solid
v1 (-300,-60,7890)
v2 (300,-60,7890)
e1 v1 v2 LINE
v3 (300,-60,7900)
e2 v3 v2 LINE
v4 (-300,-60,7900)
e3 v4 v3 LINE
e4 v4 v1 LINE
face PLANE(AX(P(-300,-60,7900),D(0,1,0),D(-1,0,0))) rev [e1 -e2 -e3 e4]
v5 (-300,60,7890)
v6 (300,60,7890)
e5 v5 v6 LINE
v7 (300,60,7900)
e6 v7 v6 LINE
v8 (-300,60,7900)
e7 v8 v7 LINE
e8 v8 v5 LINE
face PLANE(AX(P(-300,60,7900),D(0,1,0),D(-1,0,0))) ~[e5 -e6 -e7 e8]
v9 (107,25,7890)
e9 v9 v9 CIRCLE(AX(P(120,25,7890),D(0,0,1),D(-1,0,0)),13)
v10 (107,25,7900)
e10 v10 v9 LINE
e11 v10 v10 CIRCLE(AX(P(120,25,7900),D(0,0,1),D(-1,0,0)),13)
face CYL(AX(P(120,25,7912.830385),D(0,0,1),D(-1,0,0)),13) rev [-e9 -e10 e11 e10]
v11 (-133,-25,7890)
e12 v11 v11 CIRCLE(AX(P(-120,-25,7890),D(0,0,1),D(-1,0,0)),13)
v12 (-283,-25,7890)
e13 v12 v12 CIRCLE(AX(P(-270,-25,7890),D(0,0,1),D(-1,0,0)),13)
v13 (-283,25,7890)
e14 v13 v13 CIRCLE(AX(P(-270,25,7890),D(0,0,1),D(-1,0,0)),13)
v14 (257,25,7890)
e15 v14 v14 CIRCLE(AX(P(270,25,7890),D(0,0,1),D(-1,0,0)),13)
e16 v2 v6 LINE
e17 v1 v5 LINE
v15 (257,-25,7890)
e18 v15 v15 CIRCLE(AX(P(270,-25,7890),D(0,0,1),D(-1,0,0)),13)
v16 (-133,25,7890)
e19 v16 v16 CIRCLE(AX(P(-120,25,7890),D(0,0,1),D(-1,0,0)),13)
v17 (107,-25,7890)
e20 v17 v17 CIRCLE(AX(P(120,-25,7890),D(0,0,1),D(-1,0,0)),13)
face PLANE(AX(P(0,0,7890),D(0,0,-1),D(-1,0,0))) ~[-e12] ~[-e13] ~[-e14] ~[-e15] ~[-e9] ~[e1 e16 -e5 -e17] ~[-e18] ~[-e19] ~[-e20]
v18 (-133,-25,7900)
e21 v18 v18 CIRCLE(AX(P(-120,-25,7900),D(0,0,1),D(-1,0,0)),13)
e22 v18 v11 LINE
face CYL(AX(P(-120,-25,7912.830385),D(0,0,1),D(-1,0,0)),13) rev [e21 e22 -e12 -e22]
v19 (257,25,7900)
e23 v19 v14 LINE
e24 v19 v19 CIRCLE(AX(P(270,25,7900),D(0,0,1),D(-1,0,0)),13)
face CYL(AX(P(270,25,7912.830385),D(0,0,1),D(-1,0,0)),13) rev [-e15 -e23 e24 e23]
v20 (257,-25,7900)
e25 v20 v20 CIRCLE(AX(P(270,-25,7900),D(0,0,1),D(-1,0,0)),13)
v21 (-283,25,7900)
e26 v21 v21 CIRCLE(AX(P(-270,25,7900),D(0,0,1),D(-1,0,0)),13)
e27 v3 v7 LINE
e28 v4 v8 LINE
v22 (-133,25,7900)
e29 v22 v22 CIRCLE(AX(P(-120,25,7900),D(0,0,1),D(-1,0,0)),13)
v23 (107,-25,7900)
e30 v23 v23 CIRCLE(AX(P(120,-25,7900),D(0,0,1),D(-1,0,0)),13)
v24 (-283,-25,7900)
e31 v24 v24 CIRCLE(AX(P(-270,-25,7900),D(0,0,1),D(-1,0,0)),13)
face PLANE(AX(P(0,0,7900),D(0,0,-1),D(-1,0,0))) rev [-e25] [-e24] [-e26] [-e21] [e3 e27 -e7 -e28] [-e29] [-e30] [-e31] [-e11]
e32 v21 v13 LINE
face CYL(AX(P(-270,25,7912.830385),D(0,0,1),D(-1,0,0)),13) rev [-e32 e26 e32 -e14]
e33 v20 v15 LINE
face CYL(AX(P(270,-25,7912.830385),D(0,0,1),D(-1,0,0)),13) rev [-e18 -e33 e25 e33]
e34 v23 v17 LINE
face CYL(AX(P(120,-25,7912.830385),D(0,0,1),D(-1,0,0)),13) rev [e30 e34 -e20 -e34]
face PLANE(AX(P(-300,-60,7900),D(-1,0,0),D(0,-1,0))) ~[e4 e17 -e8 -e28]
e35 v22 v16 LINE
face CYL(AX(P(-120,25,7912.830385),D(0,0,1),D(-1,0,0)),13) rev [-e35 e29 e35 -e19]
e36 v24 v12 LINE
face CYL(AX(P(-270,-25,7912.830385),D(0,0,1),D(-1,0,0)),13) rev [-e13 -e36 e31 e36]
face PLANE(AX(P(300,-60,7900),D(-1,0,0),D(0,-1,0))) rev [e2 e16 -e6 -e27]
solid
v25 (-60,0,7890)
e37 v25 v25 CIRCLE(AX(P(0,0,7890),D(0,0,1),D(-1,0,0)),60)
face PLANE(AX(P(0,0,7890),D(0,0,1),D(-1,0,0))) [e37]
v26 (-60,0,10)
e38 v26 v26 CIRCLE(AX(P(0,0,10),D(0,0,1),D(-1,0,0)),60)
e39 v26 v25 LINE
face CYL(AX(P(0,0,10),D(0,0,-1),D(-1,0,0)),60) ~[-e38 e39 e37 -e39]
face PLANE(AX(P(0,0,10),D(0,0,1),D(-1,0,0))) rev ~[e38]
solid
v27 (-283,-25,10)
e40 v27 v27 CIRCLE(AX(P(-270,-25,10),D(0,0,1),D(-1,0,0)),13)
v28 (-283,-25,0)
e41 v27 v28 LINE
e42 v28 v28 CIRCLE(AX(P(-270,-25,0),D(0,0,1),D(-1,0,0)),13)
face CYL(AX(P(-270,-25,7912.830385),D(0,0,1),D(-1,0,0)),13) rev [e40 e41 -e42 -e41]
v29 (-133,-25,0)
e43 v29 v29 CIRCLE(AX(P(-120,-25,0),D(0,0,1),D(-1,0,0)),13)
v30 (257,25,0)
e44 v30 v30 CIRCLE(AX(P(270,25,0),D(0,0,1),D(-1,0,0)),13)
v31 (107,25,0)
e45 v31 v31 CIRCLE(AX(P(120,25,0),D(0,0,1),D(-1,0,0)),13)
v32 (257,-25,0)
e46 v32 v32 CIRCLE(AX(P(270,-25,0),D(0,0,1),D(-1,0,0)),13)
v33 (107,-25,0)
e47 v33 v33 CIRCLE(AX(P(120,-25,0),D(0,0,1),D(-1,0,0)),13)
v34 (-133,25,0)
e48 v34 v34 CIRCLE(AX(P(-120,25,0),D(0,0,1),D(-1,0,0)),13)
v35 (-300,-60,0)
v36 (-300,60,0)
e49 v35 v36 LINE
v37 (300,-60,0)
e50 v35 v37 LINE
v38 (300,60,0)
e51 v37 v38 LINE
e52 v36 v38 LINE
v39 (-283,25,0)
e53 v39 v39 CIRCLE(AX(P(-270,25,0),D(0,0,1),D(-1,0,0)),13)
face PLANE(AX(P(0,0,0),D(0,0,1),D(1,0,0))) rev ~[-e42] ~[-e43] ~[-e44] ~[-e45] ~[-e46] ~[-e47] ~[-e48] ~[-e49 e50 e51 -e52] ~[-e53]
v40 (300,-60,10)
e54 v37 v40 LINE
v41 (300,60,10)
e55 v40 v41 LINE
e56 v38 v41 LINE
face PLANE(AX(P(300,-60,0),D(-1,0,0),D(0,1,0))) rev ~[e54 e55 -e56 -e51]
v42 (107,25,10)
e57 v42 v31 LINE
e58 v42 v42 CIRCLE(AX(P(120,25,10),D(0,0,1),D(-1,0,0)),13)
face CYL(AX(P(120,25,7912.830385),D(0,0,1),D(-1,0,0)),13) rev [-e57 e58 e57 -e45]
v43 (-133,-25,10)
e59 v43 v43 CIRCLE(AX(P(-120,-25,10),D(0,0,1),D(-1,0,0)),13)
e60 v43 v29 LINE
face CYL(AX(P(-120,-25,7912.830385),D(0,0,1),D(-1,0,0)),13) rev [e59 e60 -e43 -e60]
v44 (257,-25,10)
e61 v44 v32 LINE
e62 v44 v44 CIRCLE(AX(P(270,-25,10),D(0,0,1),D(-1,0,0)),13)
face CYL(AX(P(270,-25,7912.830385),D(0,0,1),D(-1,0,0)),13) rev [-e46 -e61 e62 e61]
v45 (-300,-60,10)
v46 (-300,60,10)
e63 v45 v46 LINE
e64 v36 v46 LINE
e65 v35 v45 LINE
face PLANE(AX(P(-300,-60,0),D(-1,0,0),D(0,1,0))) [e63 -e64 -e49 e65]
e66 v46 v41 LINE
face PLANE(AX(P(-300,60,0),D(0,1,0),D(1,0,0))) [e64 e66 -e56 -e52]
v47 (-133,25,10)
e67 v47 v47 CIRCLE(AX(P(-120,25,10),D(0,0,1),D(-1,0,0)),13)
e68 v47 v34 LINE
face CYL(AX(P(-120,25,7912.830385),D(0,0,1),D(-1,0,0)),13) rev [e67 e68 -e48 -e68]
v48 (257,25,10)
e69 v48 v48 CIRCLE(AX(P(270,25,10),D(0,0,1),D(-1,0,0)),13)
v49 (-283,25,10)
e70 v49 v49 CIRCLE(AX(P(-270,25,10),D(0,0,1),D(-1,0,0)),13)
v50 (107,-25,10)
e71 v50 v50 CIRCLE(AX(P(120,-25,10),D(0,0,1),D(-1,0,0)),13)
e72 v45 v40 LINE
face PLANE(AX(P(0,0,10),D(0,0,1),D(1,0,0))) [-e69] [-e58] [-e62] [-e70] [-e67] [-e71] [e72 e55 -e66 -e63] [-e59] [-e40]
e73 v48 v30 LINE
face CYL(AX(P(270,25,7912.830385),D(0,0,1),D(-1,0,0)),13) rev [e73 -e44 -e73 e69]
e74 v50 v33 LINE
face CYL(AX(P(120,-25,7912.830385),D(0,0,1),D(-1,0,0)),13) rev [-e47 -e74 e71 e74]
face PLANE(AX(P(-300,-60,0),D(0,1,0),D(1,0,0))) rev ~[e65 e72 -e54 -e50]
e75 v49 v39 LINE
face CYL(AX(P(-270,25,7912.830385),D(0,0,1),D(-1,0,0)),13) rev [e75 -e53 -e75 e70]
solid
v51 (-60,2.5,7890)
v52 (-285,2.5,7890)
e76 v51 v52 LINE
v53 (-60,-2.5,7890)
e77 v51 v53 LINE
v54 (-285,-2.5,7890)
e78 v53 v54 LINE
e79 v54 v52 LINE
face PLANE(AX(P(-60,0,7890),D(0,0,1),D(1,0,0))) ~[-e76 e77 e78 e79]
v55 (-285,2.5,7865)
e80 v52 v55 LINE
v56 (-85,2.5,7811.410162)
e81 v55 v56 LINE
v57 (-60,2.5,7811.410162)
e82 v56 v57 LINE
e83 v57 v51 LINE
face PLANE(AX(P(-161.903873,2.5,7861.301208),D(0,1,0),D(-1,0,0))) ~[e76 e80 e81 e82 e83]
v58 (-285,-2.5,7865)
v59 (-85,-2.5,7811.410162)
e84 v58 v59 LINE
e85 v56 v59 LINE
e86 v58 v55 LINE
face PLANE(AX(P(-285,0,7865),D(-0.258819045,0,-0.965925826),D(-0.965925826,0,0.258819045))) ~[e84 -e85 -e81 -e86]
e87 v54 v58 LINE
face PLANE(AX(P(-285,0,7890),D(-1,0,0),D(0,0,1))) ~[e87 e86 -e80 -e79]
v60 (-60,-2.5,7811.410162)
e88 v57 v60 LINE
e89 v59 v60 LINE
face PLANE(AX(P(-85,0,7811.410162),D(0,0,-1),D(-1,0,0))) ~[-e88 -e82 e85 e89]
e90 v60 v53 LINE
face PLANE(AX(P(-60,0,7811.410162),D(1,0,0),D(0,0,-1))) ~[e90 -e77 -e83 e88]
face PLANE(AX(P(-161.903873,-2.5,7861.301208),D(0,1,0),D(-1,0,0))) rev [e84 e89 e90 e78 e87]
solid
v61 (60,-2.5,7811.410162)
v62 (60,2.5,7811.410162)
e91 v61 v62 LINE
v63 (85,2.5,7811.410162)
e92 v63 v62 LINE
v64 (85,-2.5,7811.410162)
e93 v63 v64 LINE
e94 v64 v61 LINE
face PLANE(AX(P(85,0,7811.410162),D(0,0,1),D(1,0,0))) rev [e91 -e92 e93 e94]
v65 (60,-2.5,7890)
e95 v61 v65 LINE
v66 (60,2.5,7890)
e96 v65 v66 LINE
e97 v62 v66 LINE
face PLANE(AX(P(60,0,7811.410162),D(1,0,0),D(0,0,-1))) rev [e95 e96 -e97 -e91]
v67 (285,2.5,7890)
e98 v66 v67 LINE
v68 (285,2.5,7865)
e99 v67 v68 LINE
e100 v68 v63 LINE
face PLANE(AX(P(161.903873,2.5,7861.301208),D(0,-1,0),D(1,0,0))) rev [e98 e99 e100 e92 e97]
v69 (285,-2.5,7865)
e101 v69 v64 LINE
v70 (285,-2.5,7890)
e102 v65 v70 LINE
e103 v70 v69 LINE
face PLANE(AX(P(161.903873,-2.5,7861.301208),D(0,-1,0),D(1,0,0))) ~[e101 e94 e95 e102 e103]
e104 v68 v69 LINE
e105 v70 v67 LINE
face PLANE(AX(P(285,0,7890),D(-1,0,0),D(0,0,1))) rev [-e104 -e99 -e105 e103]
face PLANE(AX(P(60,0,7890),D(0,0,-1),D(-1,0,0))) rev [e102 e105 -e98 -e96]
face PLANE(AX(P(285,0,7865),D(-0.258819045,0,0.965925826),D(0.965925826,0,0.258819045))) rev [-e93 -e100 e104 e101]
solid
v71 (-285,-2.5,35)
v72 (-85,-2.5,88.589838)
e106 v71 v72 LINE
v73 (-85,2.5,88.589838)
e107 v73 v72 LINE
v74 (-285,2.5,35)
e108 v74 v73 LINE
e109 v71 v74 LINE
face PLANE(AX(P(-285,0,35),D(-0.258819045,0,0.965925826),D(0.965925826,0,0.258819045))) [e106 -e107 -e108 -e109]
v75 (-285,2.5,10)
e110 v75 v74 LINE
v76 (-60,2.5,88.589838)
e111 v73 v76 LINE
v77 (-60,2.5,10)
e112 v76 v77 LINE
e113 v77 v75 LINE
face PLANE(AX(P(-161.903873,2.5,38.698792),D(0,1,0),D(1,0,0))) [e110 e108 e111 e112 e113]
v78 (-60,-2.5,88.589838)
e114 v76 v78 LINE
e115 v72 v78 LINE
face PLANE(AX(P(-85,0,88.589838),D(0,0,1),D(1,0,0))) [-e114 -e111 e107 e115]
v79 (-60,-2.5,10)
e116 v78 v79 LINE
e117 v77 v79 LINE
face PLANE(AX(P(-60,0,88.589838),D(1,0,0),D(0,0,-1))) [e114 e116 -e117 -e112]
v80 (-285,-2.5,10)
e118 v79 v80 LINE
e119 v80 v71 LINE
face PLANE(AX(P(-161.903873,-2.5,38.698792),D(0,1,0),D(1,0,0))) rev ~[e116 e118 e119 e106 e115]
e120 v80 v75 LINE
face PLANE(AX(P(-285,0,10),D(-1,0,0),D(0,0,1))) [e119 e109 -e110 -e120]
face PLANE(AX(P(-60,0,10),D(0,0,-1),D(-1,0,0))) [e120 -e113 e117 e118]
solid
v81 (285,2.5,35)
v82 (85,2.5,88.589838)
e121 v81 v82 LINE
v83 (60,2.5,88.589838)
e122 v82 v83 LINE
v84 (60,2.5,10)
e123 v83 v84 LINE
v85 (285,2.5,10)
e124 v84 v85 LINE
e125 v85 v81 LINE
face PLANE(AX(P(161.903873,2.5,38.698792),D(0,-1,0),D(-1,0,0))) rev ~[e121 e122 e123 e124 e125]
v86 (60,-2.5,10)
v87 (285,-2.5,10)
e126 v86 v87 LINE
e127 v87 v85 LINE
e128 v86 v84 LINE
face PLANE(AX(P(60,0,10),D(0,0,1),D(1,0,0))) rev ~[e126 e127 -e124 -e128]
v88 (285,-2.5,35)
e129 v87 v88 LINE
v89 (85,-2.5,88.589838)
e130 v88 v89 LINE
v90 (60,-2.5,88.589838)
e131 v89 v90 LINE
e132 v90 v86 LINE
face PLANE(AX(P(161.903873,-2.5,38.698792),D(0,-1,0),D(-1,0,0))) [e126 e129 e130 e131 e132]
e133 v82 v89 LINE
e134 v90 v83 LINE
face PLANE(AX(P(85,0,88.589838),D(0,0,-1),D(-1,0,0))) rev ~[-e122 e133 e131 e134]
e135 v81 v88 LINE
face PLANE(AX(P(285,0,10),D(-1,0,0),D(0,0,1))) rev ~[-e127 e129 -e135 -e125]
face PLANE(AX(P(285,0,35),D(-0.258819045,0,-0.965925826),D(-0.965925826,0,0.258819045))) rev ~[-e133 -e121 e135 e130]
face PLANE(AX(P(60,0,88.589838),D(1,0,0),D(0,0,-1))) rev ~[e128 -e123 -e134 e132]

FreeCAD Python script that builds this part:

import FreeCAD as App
import Part
import Sketcher
from FreeCAD import Vector
Q = App.Units.Quantity


def add_polygon(sketch, points):
    """Adds a closed chain of lines whose ends are joined by coincident constraints."""
    first, n = sketch.GeometryCount, len(points)
    for a, b in zip(points, points[1:] + points[:1]):
        sketch.addGeometry(Part.LineSegment(App.Vector(*a, 0), App.Vector(*b, 0)), False)
    for i in range(n):
        sketch.addConstraint(Sketcher.Constraint("Coincident", first + i, 2, first + (i + 1) % n, 1))

doc = App.newDocument("Part")
params = doc.addObject("Spreadsheet::Sheet", "Params")
for row, (alias, value) in enumerate([
    ("sketch1_width", "600 mm"),
    ("sketch1_height", "120 mm"),
    ("pad1_length", "10 mm"),
    ("sketch2_diameter", "120 mm"),
    ("pad2_length", "7880 mm"),
    ("sketch3_width", "225 mm"),
    ("sketch3_width2", "25 mm"),
    ("pad3_length", "5 mm"),
    ("sketch4_width", "225 mm"),
    ("sketch4_width2", "25 mm"),
    ("pad4_length", "5 mm"),
    ("sketch5_diameter", "26 mm"),
    ("pad5_length", "3962.830385 mm"),
    ("pad5_length2", "3962.830385 mm"),
], start=1):
    params.set(f"A{row}", alias)
    params.set(f"B{row}", "=" + value)
    params.setAlias(f"B{row}", alias)

body = doc.addObject("PartDesign::Body", "Body")

# Sketch on XY plane
sketch1 = doc.addObject("Sketcher::SketchObject", "Sketch")
body.addObject(sketch1)
sketch1.AttachmentSupport = (doc.XY_Plane, [""])
sketch1.MapMode = "FlatFace"
add_polygon(sketch1, [(-300, 60), (-300, -60), (300, -60), (300, 60)])  # lines 0-3
sketch1.addConstraint(Sketcher.Constraint("Vertical", 0))
sketch1.addConstraint(Sketcher.Constraint("Horizontal", 1))
sketch1.addConstraint(Sketcher.Constraint("Vertical", 2))
sketch1.addConstraint(Sketcher.Constraint("Horizontal", 3))
sketch1.addConstraint(Sketcher.Constraint("Symmetric", 0, 2, 2, 2, -1, 1))
sketch1.addConstraint(Sketcher.Constraint("DistanceX", 1, 1, 1, 2, 600.0))
sketch1.addConstraint(Sketcher.Constraint("DistanceY", 0, 2, 0, 1, 120.0))
sketch1.setExpression("Constraints[9]", "Params.sketch1_width")
sketch1.setExpression("Constraints[10]", "Params.sketch1_height")
pad1 = doc.addObject("PartDesign::Pad", "Pad")
body.addObject(pad1)
pad1.Profile = sketch1
pad1.setExpression("Length", "Params.pad1_length")
body2 = doc.addObject("PartDesign::Body", "Body001")

# Sketch on XY plane
sketch2 = doc.addObject("Sketcher::SketchObject", "Sketch001")
body2.addObject(sketch2)
sketch2.AttachmentSupport = (doc.getObject("XY_Plane001"), [""])
sketch2.MapMode = "FlatFace"
sketch2.AttachmentOffset = App.Placement(Vector(0, 0, 10), App.Rotation())
sketch2.addGeometry(Part.Circle(Vector(0, 0, 0), Vector(0, 0, 1), 60), False)
sketch2.addConstraint(Sketcher.Constraint("Coincident", 0, 3, -1, 1))
sketch2.addConstraint(Sketcher.Constraint("Diameter", 0, 120.0))
sketch2.setExpression("Constraints[1]", "Params.sketch2_diameter")
pad2 = doc.addObject("PartDesign::Pad", "Pad001")
body2.addObject(pad2)
pad2.Profile = sketch2
pad2.setExpression("Length", "Params.pad2_length")
body3 = doc.addObject("PartDesign::Body", "Body002")

# Sketch on XZ plane
sketch3 = doc.addObject("Sketcher::SketchObject", "Sketch002")
body3.addObject(sketch3)
sketch3.AttachmentSupport = (doc.getObject("XZ_Plane002"), [""])
sketch3.MapMode = "FlatFace"
add_polygon(sketch3, [(285, 35), (285, 10), (60, 10), (60, 88.589838), (85, 88.589838)])  # lines 0-4
sketch3.addConstraint(Sketcher.Constraint("Vertical", 0))
sketch3.addConstraint(Sketcher.Constraint("Horizontal", 1))
sketch3.addConstraint(Sketcher.Constraint("Vertical", 2))
sketch3.addConstraint(Sketcher.Constraint("Horizontal", 3))
sketch3.addConstraint(Sketcher.Constraint("Equal", 3, 0))
sketch3.addConstraint(Sketcher.Constraint("DistanceX", 1, 2, 1, 1, 225.0))
sketch3.addConstraint(Sketcher.Constraint("DistanceX", 3, 1, 3, 2, 25.0))
sketch3.addConstraint(Sketcher.Constraint("Angle", 4, Q("-15 deg")))
sketch3.addConstraint(Sketcher.Constraint("DistanceX", -1, 1, 0, 2, 285.0))
sketch3.addConstraint(Sketcher.Constraint("DistanceY", -1, 1, 0, 2, 10.0))
sketch3.setExpression("Constraints[10]", "Params.sketch3_width")
sketch3.setExpression("Constraints[11]", "Params.sketch3_width2")
pad3 = doc.addObject("PartDesign::Pad", "Pad002")
body3.addObject(pad3)
pad3.Profile = sketch3
pad3.setExpression("Length", "Params.pad3_length")
pad3.Midplane = True
body4 = doc.addObject("PartDesign::Body", "Body003")

# Sketch on XZ plane
sketch4 = doc.addObject("Sketcher::SketchObject", "Sketch003")
body4.addObject(sketch4)
sketch4.AttachmentSupport = (doc.getObject("XZ_Plane003"), [""])
sketch4.MapMode = "FlatFace"
add_polygon(sketch4, [(-60, 10), (-285, 10), (-285, 35), (-85, 88.589838), (-60, 88.589838)])  # lines 0-4
sketch4.addConstraint(Sketcher.Constraint("Horizontal", 0))
sketch4.addConstraint(Sketcher.Constraint("Vertical", 1))
sketch4.addConstraint(Sketcher.Constraint("Horizontal", 3))
sketch4.addConstraint(Sketcher.Constraint("Vertical", 4))
sketch4.addConstraint(Sketcher.Constraint("Equal", 3, 1))
sketch4.addConstraint(Sketcher.Constraint("DistanceX", 0, 2, 0, 1, 225.0))
sketch4.addConstraint(Sketcher.Constraint("DistanceX", 3, 1, 3, 2, 25.0))
sketch4.addConstraint(Sketcher.Constraint("Angle", 2, Q("15 deg")))
sketch4.addConstraint(Sketcher.Constraint("DistanceX", 0, 2, -1, 1, 285.0))
sketch4.addConstraint(Sketcher.Constraint("DistanceY", -1, 1, 0, 2, 10.0))
sketch4.setExpression("Constraints[10]", "Params.sketch4_width")
sketch4.setExpression("Constraints[11]", "Params.sketch4_width2")
pad4 = doc.addObject("PartDesign::Pad", "Pad003")
body4.addObject(pad4)
pad4.Profile = sketch4
pad4.setExpression("Length", "Params.pad4_length")
pad4.Midplane = True
body5 = doc.addObject("PartDesign::Body", "Body004")
doc.recompute()

mirroring = doc.addObject("Part::Mirroring", "Mirroring")
mirroring.Source = body
mirroring.Base = Vector(0, 0, 3950)
mirroring.Normal = Vector(0, 0, -1)
body5.BaseFeature = mirroring
doc.recompute()
body6 = doc.addObject("PartDesign::Body", "Body005")
doc.recompute()

mirroring2 = doc.addObject("Part::Mirroring", "Mirroring001")
mirroring2.Source = body4
mirroring2.Base = Vector(0, 0, 3950)
mirroring2.Normal = Vector(0, 0, -1)
body6.BaseFeature = mirroring2
doc.recompute()
body7 = doc.addObject("PartDesign::Body", "Body006")
doc.recompute()

mirroring3 = doc.addObject("Part::Mirroring", "Mirroring002")
mirroring3.Source = body3
mirroring3.Base = Vector(0, 0, 3950)
mirroring3.Normal = Vector(0, 0, -1)
body7.BaseFeature = mirroring3
doc.recompute()
body8 = doc.addObject("PartDesign::Body", "Body007")
body8.AllowCompound = True

# Sketch on XY plane
sketch5 = doc.addObject("Sketcher::SketchObject", "Sketch004")
body8.addObject(sketch5)
sketch5.AttachmentSupport = (doc.getObject("XY_Plane007"), [""])
sketch5.MapMode = "FlatFace"
sketch5.AttachmentOffset = App.Placement(Vector(0, 0, 3950), App.Rotation())
sketch5.addGeometry(Part.Circle(Vector(-270, 25, 0), Vector(0, 0, 1), 13), False)
sketch5.addGeometry(Part.Circle(Vector(-270, -25, 0), Vector(0, 0, 1), 13), False)
sketch5.addGeometry(Part.Circle(Vector(-120, 25, 0), Vector(0, 0, 1), 13), False)
sketch5.addGeometry(Part.Circle(Vector(-120, -25, 0), Vector(0, 0, 1), 13), False)
sketch5.addGeometry(Part.Circle(Vector(120, -25, 0), Vector(0, 0, 1), 13), False)
sketch5.addGeometry(Part.Circle(Vector(120, 25, 0), Vector(0, 0, 1), 13), False)
sketch5.addGeometry(Part.Circle(Vector(270, -25, 0), Vector(0, 0, 1), 13), False)
sketch5.addGeometry(Part.Circle(Vector(270, 25, 0), Vector(0, 0, 1), 13), False)
sketch5.addConstraint(Sketcher.Constraint("Equal", 0, 1))
sketch5.addConstraint(Sketcher.Constraint("Equal", 1, 2))
sketch5.addConstraint(Sketcher.Constraint("Equal", 2, 3))
sketch5.addConstraint(Sketcher.Constraint("Equal", 3, 4))
sketch5.addConstraint(Sketcher.Constraint("Equal", 4, 5))
sketch5.addConstraint(Sketcher.Constraint("Equal", 5, 6))
sketch5.addConstraint(Sketcher.Constraint("Equal", 6, 7))
sketch5.addConstraint(Sketcher.Constraint("Symmetric", 2, 3, 4, 3, -1, 1))
sketch5.addConstraint(Sketcher.Constraint("Symmetric", 3, 3, 5, 3, -1, 1))
sketch5.addConstraint(Sketcher.Constraint("Symmetric", 0, 3, 6, 3, -1, 1))
sketch5.addConstraint(Sketcher.Constraint("Symmetric", 1, 3, 7, 3, -1, 1))
sketch5.addConstraint(Sketcher.Constraint("Symmetric", 3, 3, 4, 3, -2))
sketch5.addConstraint(Sketcher.Constraint("Symmetric", 1, 3, 6, 3, -2))
sketch5.addConstraint(Sketcher.Constraint("Horizontal", 0, 3, 2, 3))
sketch5.addConstraint(Sketcher.Constraint("Diameter", 0, 26.0))
sketch5.addConstraint(Sketcher.Constraint("DistanceX", 0, 3, -1, 1, 270.0))
sketch5.addConstraint(Sketcher.Constraint("DistanceY", -1, 1, 0, 3, 25.0))
sketch5.addConstraint(Sketcher.Constraint("DistanceX", 2, 3, -1, 1, 120.0))
sketch5.setExpression("Constraints[14]", "Params.sketch5_diameter")
pad5 = doc.addObject("PartDesign::Pad", "Pad004")
body8.addObject(pad5)
pad5.Profile = sketch5
pad5.Type = "TwoLengths"
pad5.setExpression("Length", "Params.pad5_length")
pad5.setExpression("Length2", "Params.pad5_length2")
pad5.Reversed = True
doc.recompute()

body9 = doc.addObject("PartDesign::Body", "Body008")
body9.BaseFeature = body8
boolean = doc.addObject("PartDesign::Boolean", "Boolean")
body.addObject(boolean)
boolean.Type = "Cut"
boolean.addObjects([body9])
doc.recompute()

boolean2 = doc.addObject("PartDesign::Boolean", "Boolean001")
body5.addObject(boolean2)
boolean2.Type = "Cut"
boolean2.addObjects([body8])
mirroring.Visibility = False
mirroring2.Visibility = False
mirroring3.Visibility = False

doc.recompute()
